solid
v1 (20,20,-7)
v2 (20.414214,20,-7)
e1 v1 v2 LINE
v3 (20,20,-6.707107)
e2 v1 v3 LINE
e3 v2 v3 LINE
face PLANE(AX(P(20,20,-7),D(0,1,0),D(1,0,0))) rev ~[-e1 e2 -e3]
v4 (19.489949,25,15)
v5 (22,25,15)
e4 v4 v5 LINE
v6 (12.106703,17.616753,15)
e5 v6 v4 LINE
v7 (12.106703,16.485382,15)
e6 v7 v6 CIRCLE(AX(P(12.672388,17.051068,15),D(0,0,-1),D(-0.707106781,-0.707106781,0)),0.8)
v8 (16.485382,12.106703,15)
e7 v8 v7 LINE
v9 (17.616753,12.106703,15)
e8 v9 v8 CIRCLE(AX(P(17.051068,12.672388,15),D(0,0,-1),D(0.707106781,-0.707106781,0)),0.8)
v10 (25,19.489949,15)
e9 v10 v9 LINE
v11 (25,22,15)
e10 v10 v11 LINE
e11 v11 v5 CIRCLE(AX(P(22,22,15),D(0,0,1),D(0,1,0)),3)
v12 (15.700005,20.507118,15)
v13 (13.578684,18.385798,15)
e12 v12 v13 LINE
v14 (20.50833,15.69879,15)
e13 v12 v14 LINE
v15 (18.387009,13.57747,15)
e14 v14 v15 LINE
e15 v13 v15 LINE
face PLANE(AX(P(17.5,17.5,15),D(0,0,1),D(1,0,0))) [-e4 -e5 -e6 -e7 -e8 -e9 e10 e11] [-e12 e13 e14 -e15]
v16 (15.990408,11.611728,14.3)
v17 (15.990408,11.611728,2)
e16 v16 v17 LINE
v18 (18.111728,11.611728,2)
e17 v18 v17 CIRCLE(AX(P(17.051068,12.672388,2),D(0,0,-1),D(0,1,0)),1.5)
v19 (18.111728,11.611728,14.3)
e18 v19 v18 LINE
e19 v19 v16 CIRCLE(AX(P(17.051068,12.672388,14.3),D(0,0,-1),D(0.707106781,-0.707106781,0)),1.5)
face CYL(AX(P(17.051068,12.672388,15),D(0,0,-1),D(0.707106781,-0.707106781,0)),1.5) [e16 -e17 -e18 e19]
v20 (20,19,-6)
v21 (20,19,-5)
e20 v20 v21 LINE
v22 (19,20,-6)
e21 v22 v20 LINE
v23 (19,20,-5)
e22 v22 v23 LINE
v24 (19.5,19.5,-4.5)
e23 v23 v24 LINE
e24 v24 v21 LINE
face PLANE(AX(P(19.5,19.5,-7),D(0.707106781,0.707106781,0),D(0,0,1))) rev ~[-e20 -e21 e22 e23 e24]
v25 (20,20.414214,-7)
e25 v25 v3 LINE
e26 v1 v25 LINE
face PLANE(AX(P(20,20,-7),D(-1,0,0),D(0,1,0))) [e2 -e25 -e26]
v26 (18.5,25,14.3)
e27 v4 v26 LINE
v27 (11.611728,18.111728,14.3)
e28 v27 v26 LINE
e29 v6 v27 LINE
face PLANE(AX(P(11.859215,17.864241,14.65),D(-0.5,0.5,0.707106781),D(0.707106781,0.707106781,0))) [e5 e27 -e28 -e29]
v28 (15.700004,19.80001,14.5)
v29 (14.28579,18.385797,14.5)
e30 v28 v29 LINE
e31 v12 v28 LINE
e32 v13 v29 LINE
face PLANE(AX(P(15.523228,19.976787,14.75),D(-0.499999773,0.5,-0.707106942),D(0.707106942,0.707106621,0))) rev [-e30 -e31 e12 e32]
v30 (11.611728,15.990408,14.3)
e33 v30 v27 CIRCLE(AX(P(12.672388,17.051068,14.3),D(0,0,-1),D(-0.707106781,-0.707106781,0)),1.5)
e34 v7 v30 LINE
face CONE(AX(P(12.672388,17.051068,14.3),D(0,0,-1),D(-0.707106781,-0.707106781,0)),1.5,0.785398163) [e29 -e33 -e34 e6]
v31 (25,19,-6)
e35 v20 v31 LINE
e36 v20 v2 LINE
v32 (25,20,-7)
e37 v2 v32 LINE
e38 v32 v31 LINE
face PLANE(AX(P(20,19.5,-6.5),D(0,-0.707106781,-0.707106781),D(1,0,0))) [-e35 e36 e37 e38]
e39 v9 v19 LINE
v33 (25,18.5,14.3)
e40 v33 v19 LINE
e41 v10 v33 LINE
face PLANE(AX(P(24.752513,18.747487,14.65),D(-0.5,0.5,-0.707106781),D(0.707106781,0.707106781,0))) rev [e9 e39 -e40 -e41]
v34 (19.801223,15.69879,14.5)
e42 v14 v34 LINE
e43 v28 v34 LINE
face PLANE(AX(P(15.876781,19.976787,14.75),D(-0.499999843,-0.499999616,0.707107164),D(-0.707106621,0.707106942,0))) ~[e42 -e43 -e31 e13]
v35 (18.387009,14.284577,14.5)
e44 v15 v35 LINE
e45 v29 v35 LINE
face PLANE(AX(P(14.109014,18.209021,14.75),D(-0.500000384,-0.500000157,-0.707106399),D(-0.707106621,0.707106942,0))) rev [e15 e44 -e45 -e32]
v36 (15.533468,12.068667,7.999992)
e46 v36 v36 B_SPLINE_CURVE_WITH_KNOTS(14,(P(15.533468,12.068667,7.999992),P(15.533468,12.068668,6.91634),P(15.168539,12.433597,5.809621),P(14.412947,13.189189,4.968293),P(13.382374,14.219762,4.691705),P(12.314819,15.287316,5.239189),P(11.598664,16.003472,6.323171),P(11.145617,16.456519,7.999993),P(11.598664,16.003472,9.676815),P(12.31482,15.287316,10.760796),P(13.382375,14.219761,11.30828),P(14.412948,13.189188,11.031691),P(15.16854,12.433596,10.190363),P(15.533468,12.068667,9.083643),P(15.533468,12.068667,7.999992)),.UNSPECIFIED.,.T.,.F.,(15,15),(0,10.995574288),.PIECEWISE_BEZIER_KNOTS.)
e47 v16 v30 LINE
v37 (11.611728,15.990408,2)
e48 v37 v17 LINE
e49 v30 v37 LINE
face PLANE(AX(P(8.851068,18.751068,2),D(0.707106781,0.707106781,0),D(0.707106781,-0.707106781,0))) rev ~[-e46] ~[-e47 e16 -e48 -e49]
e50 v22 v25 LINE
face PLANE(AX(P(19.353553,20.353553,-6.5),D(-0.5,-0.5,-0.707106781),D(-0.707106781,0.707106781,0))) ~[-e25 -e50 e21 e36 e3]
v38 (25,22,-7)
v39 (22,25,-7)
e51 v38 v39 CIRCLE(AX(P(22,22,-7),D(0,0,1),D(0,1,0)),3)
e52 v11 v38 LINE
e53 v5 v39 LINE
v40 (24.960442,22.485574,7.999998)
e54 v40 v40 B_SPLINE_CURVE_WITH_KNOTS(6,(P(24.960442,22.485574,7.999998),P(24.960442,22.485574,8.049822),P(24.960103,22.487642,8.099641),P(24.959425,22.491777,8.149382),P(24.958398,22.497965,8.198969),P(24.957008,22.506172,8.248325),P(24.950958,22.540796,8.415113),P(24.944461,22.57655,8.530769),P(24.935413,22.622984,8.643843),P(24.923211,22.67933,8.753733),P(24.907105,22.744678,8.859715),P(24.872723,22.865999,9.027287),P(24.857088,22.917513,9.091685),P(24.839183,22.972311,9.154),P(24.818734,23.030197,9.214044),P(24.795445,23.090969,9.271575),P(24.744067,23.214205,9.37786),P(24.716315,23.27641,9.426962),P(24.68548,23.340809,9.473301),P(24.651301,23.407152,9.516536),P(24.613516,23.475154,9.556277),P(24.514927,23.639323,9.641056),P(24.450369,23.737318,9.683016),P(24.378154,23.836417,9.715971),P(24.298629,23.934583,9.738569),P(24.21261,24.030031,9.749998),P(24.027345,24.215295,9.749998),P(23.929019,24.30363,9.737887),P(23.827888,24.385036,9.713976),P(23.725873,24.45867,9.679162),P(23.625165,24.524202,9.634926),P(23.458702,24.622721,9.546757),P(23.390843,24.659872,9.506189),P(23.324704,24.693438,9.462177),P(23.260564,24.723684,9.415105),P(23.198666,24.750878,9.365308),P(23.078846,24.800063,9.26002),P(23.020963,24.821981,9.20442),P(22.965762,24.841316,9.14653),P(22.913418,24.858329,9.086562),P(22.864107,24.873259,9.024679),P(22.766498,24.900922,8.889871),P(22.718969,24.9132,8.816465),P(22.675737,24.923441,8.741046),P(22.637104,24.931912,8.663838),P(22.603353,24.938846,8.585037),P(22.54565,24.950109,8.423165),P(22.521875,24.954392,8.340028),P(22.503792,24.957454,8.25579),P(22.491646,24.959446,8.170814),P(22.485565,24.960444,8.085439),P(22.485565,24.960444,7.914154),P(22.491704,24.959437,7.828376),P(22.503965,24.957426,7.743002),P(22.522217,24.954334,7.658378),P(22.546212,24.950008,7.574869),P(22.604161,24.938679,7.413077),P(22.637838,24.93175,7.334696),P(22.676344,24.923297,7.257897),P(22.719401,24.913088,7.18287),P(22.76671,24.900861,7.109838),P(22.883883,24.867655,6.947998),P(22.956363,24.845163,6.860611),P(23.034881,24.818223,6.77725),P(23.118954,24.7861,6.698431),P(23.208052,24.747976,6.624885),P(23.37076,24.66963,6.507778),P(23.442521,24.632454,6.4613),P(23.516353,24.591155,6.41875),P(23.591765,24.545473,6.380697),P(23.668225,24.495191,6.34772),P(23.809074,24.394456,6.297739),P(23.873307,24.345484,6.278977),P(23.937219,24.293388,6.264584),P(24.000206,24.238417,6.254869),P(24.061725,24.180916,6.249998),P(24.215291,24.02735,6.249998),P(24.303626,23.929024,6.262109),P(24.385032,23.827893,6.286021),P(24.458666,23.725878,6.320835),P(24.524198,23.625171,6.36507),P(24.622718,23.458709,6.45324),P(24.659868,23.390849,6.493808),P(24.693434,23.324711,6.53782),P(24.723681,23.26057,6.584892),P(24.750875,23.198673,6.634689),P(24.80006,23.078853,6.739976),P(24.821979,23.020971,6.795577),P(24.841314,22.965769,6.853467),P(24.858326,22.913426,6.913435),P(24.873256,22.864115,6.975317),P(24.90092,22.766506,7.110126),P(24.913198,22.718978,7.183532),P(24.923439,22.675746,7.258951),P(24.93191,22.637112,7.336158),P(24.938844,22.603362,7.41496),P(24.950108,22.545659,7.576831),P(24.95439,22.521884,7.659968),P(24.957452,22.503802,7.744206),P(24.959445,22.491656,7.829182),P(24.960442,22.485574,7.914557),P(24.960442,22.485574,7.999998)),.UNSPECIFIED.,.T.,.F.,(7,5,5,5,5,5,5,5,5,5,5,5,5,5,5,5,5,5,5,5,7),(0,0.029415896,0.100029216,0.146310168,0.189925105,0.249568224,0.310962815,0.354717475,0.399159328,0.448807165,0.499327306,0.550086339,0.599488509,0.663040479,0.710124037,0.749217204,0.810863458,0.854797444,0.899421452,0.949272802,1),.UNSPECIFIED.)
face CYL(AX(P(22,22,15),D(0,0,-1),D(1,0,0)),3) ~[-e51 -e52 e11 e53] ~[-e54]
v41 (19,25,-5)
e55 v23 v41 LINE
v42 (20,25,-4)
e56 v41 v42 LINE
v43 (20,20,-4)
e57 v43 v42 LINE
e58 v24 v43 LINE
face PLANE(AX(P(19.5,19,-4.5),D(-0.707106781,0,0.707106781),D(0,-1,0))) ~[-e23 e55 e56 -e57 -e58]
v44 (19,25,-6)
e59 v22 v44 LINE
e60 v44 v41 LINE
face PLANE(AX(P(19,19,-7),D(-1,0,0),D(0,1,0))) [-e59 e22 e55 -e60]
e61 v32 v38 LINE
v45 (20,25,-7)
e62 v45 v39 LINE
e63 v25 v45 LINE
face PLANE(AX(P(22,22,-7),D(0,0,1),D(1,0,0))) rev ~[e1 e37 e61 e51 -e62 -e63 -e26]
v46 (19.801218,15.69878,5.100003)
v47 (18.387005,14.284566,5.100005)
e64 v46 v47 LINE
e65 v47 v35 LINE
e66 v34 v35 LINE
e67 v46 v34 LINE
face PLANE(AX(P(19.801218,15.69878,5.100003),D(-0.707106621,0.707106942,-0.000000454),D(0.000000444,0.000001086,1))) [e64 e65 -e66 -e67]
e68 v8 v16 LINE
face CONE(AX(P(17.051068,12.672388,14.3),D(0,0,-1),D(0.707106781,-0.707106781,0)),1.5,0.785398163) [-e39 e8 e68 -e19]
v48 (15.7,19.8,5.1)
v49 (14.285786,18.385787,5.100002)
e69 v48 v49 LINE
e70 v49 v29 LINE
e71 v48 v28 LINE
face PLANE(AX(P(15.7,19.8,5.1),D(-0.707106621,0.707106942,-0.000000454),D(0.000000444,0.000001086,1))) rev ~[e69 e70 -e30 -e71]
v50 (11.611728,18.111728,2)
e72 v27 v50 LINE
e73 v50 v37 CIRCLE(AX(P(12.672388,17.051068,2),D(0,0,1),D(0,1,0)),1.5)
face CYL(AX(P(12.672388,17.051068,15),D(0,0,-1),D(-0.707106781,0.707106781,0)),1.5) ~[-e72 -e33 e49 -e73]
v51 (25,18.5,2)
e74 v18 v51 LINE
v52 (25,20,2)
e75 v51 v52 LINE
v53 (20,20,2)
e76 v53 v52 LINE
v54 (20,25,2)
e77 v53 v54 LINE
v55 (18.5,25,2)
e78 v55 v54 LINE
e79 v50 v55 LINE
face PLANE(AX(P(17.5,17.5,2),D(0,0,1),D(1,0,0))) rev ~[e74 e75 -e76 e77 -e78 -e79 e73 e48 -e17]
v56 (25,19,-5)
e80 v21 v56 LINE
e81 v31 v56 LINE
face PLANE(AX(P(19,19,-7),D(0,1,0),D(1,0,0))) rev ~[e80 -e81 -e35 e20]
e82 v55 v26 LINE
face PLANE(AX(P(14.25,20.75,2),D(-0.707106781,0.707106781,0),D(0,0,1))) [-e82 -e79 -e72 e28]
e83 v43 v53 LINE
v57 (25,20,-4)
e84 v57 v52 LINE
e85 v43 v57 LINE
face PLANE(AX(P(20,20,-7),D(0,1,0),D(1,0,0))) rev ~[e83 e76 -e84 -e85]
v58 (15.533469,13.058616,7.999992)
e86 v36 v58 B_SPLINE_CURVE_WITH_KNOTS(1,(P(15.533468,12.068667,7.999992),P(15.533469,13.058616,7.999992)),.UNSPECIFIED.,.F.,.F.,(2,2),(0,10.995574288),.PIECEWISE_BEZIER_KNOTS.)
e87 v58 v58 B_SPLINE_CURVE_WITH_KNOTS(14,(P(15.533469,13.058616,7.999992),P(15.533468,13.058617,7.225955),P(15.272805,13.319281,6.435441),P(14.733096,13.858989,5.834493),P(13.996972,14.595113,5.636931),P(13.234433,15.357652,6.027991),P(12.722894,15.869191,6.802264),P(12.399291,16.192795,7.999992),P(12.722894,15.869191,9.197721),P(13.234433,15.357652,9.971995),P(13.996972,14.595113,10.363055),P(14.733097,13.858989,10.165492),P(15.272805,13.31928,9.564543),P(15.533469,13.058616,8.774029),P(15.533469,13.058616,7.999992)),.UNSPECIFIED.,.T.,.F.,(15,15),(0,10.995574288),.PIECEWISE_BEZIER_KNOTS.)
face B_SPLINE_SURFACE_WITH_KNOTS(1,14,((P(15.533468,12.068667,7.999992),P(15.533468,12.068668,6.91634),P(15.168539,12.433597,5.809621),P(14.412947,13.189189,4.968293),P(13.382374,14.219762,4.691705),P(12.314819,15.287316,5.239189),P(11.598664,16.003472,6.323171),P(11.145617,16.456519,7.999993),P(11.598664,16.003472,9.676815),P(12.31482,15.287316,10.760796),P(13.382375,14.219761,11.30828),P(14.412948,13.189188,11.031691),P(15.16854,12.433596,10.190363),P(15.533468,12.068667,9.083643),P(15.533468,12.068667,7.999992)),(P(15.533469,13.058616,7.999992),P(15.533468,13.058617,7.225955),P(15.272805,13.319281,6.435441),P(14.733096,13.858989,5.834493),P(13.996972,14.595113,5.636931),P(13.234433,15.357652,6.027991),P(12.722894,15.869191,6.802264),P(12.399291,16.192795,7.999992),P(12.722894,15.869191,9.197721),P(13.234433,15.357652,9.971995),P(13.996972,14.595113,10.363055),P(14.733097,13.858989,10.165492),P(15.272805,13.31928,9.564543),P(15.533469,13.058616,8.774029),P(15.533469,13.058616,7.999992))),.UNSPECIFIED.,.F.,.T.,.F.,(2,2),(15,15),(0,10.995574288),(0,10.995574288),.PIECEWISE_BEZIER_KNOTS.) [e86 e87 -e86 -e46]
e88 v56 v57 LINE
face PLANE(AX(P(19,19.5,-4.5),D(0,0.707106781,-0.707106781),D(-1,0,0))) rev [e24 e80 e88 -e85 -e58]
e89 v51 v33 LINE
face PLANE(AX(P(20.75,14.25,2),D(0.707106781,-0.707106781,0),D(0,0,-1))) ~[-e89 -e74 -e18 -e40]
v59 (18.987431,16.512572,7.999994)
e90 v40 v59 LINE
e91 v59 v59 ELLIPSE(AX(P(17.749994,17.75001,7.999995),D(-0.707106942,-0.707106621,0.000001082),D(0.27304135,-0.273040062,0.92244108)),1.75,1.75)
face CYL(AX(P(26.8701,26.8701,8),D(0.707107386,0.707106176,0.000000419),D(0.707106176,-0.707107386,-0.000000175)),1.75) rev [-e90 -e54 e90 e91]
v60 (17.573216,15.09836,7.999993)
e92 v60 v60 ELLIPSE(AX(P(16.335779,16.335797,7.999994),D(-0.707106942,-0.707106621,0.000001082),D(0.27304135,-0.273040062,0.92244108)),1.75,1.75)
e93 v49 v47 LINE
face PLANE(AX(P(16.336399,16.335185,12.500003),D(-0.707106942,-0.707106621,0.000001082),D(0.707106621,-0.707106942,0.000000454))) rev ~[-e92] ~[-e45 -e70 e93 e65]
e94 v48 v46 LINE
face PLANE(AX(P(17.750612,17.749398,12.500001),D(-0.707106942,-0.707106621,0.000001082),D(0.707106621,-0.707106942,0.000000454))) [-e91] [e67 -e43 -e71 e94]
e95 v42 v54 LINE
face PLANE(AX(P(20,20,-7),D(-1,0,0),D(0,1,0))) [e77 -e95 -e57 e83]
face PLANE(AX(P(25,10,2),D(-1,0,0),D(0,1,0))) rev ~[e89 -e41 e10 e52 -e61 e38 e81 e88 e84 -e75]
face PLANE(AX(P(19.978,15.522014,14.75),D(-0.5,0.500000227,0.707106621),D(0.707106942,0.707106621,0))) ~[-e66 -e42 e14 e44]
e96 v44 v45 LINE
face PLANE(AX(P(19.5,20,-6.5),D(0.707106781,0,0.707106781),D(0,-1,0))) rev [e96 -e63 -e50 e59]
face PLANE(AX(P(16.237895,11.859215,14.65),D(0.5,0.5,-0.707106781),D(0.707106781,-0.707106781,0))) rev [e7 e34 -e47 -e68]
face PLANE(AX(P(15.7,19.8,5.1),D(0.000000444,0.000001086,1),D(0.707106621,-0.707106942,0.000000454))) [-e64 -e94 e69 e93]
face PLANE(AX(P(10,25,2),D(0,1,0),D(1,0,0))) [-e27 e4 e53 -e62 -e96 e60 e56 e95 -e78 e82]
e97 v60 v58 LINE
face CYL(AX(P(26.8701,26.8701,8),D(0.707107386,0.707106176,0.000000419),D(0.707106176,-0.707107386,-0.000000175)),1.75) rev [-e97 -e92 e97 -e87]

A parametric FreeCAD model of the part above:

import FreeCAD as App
import Part
import Sketcher


def edges_at(feature, points):
    """Names of the edges that pass closest to the given points."""
    edges = feature.Shape.Edges
    near = lambda p: min(range(len(edges)), key=lambda i: edges[i].distToShape(Part.Vertex(*p))[0])
    return sorted({f"Edge{near(p) + 1}" for p in points})


def add_polygon(sketch, points):
    """Adds a closed chain of lines whose ends are joined by coincident constraints."""
    first, n = sketch.GeometryCount, len(points)
    for a, b in zip(points, points[1:] + points[:1]):
        sketch.addGeometry(Part.LineSegment(App.Vector(*a, 0), App.Vector(*b, 0)), False)
    for i in range(n):
        sketch.addConstraint(Sketcher.Constraint("Coincident", first + i, 2, first + (i + 1) % n, 1))

doc = App.newDocument("Part")
params = doc.addObject("Spreadsheet::Sheet", "Params")
for row, (alias, value) in enumerate([
    ("sketch1_width", "5.8 mm"),
    ("sketch1_height", "14.8 mm"),
    ("pad1_length", "2 mm"),
    ("sketch2_diameter", "3.5 mm"),
    ("pad2_length", "33 mm"),
    ("sketch3_width", "5 mm"),
    ("pad3_length", "14 mm"),
    ("sketch4_width", "14 mm"),
    ("sketch4_height", "10 mm"),
    ("pad4_length", "14 mm"),
    ("sketch5_width", "15 mm"),
    ("pad5_length", "13 mm"),
    ("chamfer_size", "8.5 mm"),
    ("fillet_radius", "1.5 mm"),
    ("sketch6_width", "6 mm"),
    ("pad6_length", "3 mm"),
    ("chamfer2_size", "1 mm"),
    ("chamfer3_size", "1 mm"),
    ("chamfer4_size", "1 mm"),
    ("fillet2_radius", "3 mm"),
    ("chamfer5_size", "0.7 mm"),
    ("chamfer6_size", "0.5 mm"),
], start=1):
    params.set(f"A{row}", alias)
    params.set(f"B{row}", "=" + value)
    params.setAlias(f"B{row}", alias)

body = doc.addObject("PartDesign::Body", "Body")

sketch1 = body.newObject("Sketcher::SketchObject", "Sketch")
sketch1.AttachmentSupport = (doc.getObject("XY_Plane"), [""])
sketch1.MapMode = "FlatFace"
add_polygon(sketch1, [(0, 15), (0, 0), (6, 0), (6, 15)])
sketch1.addConstraint([
    Sketcher.Constraint("Vertical", 0),
    Sketcher.Constraint("Horizontal", 1),
    Sketcher.Constraint("Vertical", 2),
    Sketcher.Constraint("Horizontal", 3),
    Sketcher.Constraint("Coincident", 0, 2, -1, 1),
    Sketcher.Constraint("DistanceX", 1, 1, 1, 2, 5.8),
    Sketcher.Constraint("DistanceY", 0, 2, 0, 1, 14.8),
])
sketch1.setExpression("Constraints[9]", "Params.sketch1_width")
sketch1.setExpression("Constraints[10]", "Params.sketch1_height")
pad1 = body.newObject("PartDesign::Pad", "Pad")
pad1.Profile = sketch1
pad1.setExpression("Length", "Params.pad1_length")
body2 = doc.addObject("PartDesign::Body", "Body001")
doc.recompute()

body.Placement = App.Placement(App.Vector(0, 0, 0), App.Rotation(App.Vector(1, 0, 0), 89.999938))
boolean = body2.newObject("PartDesign::Boolean", "Boolean")
boolean.Type = "Fuse"
boolean.addObjects([body])
body3 = doc.addObject("PartDesign::Body", "Body002")
doc.recompute()

body2.Placement = App.Placement(App.Vector(0, 0, 0), App.Rotation(App.Vector(0, 1, 0), 359.999974))
boolean2 = body3.newObject("PartDesign::Boolean", "Boolean001")
boolean2.Type = "Fuse"
boolean2.addObjects([body2])
body4 = doc.addObject("PartDesign::Body", "Body003")
doc.recompute()

body3.Placement = App.Placement(App.Vector(15.7, 19.8, 5.1), App.Rotation(App.Vector(0, 0, 1), 314.999987))
boolean3 = body4.newObject("PartDesign::Boolean", "Boolean002")
boolean3.Type = "Fuse"
boolean3.addObjects([body3])
body5 = doc.addObject("PartDesign::Body", "Body004")

sketch2 = body5.newObject("Sketcher::SketchObject", "Sketch001")
sketch2.AttachmentSupport = (doc.getObject("XY_Plane004"), [""])
sketch2.MapMode = "FlatFace"
sketch2.addGeometry(Part.Circle(App.Vector(0, 0, 0), App.Vector(0, 0, 1), 1.8), False)
sketch2.addConstraint([
    Sketcher.Constraint("Coincident", 0, 3, -1, 1),
    Sketcher.Constraint("Diameter", 0, 3.5),
])
sketch2.setExpression("Constraints[1]", "Params.sketch2_diameter")
pad2 = body5.newObject("PartDesign::Pad", "Pad001")
pad2.Profile = sketch2
pad2.setExpression("Length", "Params.pad2_length")
body6 = doc.addObject("PartDesign::Body", "Body005")
doc.recompute()

body5.Placement = App.Placement(App.Vector(0, 0, 0), App.Rotation(App.Vector(1, 0, 0), 90.000024))
boolean4 = body6.newObject("PartDesign::Boolean", "Boolean003")
boolean4.Type = "Fuse"
boolean4.addObjects([body5])
body7 = doc.addObject("PartDesign::Body", "Body006")
doc.recompute()

body6.Placement = App.Placement(App.Vector(0, 0, 0), App.Rotation(App.Vector(0, 1, 0), 0.00001))
boolean5 = body7.newObject("PartDesign::Boolean", "Boolean004")
boolean5.Type = "Fuse"
boolean5.addObjects([body6])
body8 = doc.addObject("PartDesign::Body", "Body007")
doc.recompute()

body7.Placement = App.Placement(App.Vector(26.8701, 26.8701, 8), App.Rotation(App.Vector(0, 0, 1), 314.999951))
boolean6 = body8.newObject("PartDesign::Boolean", "Boolean005")
boolean6.Type = "Fuse"
boolean6.addObjects([body7])
doc.recompute()

boolean7 = body8.newObject("PartDesign::Boolean", "Boolean006")
boolean7.Type = "Fuse"
boolean7.addObjects([body4])
body9 = doc.addObject("PartDesign::Body", "Body008")

sketch3 = body9.newObject("Sketcher::SketchObject", "Sketch002")
sketch3.AttachmentSupport = (doc.getObject("XY_Plane008"), [""])
sketch3.MapMode = "FlatFace"
sketch3.AttachmentOffset = App.Placement(App.Vector(0, 0, -7), App.Rotation())
add_polygon(sketch3, [(20, 25), (20, 20), (25, 20), (25, 25)])
sketch3.addConstraint([
    Sketcher.Constraint("Vertical", 0),
    Sketcher.Constraint("Horizontal", 1),
    Sketcher.Constraint("Vertical", 2),
    Sketcher.Constraint("Horizontal", 3),
    Sketcher.Constraint("Equal", 3, 0),
    Sketcher.Constraint("DistanceX", 1, 1, 1, 2, 5.0),
    Sketcher.Constraint("DistanceX", -1, 1, 0, 2, 20.0),
    Sketcher.Constraint("DistanceY", -1, 1, 0, 2, 20.0),
])
sketch3.setExpression("Constraints[9]", "Params.sketch3_width")
pad3 = body9.newObject("PartDesign::Pad", "Pad002")
pad3.Profile = sketch3
pad3.setExpression("Length", "Params.pad3_length")
body10 = doc.addObject("PartDesign::Body", "Body009")

sketch4 = body10.newObject("Sketcher::SketchObject", "Sketch003")
sketch4.AttachmentSupport = (doc.getObject("XY_Plane009"), [""])
sketch4.MapMode = "FlatFace"
add_polygon(sketch4, [(0, 10), (0, 0), (14, 0), (14, 10)])
sketch4.addConstraint([
    Sketcher.Constraint("Vertical", 0),
    Sketcher.Constraint("Horizontal", 1),
    Sketcher.Constraint("Vertical", 2),
    Sketcher.Constraint("Horizontal", 3),
    Sketcher.Constraint("Coincident", 0, 2, -1, 1),
    Sketcher.Constraint("DistanceX", 1, 1, 1, 2, 14.0),
    Sketcher.Constraint("DistanceY", 0, 2, 0, 1, 10.0),
])
sketch4.setExpression("Constraints[9]", "Params.sketch4_width")
sketch4.setExpression("Constraints[10]", "Params.sketch4_height")
pad4 = body10.newObject("PartDesign::Pad", "Pad003")
pad4.Profile = sketch4
pad4.setExpression("Length", "Params.pad4_length")
body11 = doc.addObject("PartDesign::Body", "Body010")
doc.recompute()

body10.Placement = App.Placement(App.Vector(1.78, 11.68, 2), App.Rotation(App.Vector(0, 0, -1), 45))
boolean8 = body11.newObject("PartDesign::Boolean", "Boolean007")
boolean8.Type = "Fuse"
boolean8.addObjects([body10])
body12 = doc.addObject("PartDesign::Body", "Body011")

sketch5 = body12.newObject("Sketcher::SketchObject", "Sketch004")
sketch5.AttachmentSupport = (doc.getObject("XY_Plane011"), [""])
sketch5.MapMode = "FlatFace"
sketch5.AttachmentOffset = App.Placement(App.Vector(0, 0, 2), App.Rotation())
add_polygon(sketch5, [(10, 25), (10, 10), (25, 10), (25, 25)])
sketch5.addConstraint([
    Sketcher.Constraint("Vertical", 0),
    Sketcher.Constraint("Horizontal", 1),
    Sketcher.Constraint("Vertical", 2),
    Sketcher.Constraint("Horizontal", 3),
    Sketcher.Constraint("Equal", 3, 0),
    Sketcher.Constraint("DistanceX", 1, 1, 1, 2, 15.0),
    Sketcher.Constraint("DistanceX", -1, 1, 0, 2, 10.0),
    Sketcher.Constraint("DistanceY", -1, 1, 0, 2, 10.0),
])
sketch5.setExpression("Constraints[9]", "Params.sketch5_width")
pad5 = body12.newObject("PartDesign::Pad", "Pad004")
pad5.Profile = sketch5
pad5.setExpression("Length", "Params.pad5_length")
doc.recompute()

chamfer = body12.newObject("PartDesign::Chamfer", "Chamfer")
chamfer.Base = (pad5, edges_at(pad5, [(10, 25, 8.5), (25, 10, 8.5)]))
chamfer.setExpression("Size", "Params.chamfer_size")
doc.recompute()

boolean9 = body12.newObject("PartDesign::Boolean", "Boolean008")
boolean9.Type = "Cut"
boolean9.addObjects([body11])
doc.recompute()

fillet = body12.newObject("PartDesign::Fillet", "Fillet")
fillet.Base = (boolean9, edges_at(boolean9, [(10.551, 17.051, 8.5), (17.051, 10.551, 8.5)]))
fillet.setExpression("Radius", "Params.fillet_radius")
body13 = doc.addObject("PartDesign::Body", "Body012")

sketch6 = body13.newObject("Sketcher::SketchObject", "Sketch005")
sketch6.AttachmentSupport = (doc.getObject("XY_Plane012"), [""])
sketch6.MapMode = "FlatFace"
sketch6.AttachmentOffset = App.Placement(App.Vector(0, 0, -7), App.Rotation())
add_polygon(sketch6, [(19, 25), (19, 19), (25, 19), (25, 25)])
sketch6.addConstraint([
    Sketcher.Constraint("Vertical", 0),
    Sketcher.Constraint("Horizontal", 1),
    Sketcher.Constraint("Vertical", 2),
    Sketcher.Constraint("Horizontal", 3),
    Sketcher.Constraint("Equal", 3, 0),
    Sketcher.Constraint("DistanceX", 1, 1, 1, 2, 6.0),
    Sketcher.Constraint("DistanceX", -1, 1, 0, 2, 19.0),
    Sketcher.Constraint("DistanceY", -1, 1, 0, 2, 19.0),
])
sketch6.setExpression("Constraints[9]", "Params.sketch6_width")
pad6 = body13.newObject("PartDesign::Pad", "Pad005")
pad6.Profile = sketch6
pad6.setExpression("Length", "Params.pad6_length")
doc.recompute()

chamfer2 = body13.newObject("PartDesign::Chamfer", "Chamfer001")
chamfer2.Base = (pad6, edges_at(pad6, [(19, 22, -4), (22, 19, -4)]))
chamfer2.setExpression("Size", "Params.chamfer2_size")
doc.recompute()

chamfer3 = body13.newObject("PartDesign::Chamfer", "Chamfer002")
chamfer3.Base = (chamfer2, edges_at(chamfer2, [(19, 19, -6)]))
chamfer3.setExpression("Size", "Params.chamfer3_size")
doc.recompute()

chamfer4 = body13.newObject("PartDesign::Chamfer", "Chamfer003")
chamfer4.Base = (chamfer3, edges_at(chamfer3, [(19, 22.5, -7), (19.5, 19.5, -7), (22.5, 19, -7)]))
chamfer4.setExpression("Size", "Params.chamfer4_size")
doc.recompute()

boolean10 = body13.newObject("PartDesign::Boolean", "Boolean009")
boolean10.Type = "Fuse"
boolean10.addObjects([body9])
doc.recompute()

boolean11 = body13.newObject("PartDesign::Boolean", "Boolean010")
boolean11.Type = "Fuse"
boolean11.addObjects([body12])
doc.recompute()

fillet2 = body13.newObject("PartDesign::Fillet", "Fillet001")
fillet2.Base = (boolean11, edges_at(boolean11, [
    (25, 25, 4),
    (25, 25, 4),
    (25, 25, 4),
    (25, 25, 4),
]))
fillet2.setExpression("Radius", "Params.fillet2_radius")
doc.recompute()

boolean12 = body13.newObject("PartDesign::Boolean", "Boolean011")
boolean12.Type = "Cut"
boolean12.addObjects([body8])
doc.recompute()

chamfer5 = body13.newObject("PartDesign::Chamfer", "Chamfer004")
chamfer5.Base = (boolean12, edges_at(boolean12, [
    (17.051, 11.172, 15),
    (11.612, 15.99, 8.5),
    (13.801, 13.801, 15),
    (12.564, 15.039, 8),
]))
chamfer5.setExpression("Size", "Params.chamfer5_size")
doc.recompute()

chamfer6 = body13.newObject("PartDesign::Chamfer", "Chamfer005")
chamfer6.Base = (chamfer5, edges_at(chamfer5, [
    (16.336, 16.335, 15),
    (19.094, 14.992, 15),
    (17.751, 17.749, 15),
    (14.993, 19.093, 15),
]))
chamfer6.setExpression("Size", "Params.chamfer6_size")

doc.recompute()
